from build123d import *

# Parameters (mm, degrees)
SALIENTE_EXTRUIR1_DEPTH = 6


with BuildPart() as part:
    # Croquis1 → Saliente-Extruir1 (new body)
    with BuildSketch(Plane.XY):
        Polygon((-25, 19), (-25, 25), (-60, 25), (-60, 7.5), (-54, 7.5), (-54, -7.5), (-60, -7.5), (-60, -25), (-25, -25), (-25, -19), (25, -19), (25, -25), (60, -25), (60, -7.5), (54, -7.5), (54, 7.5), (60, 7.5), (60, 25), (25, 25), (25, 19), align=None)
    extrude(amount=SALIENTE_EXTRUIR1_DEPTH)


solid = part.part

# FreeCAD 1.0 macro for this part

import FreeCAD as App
import Part
import Sketcher
from FreeCAD import Vector

doc = App.newDocument("Part")
body = doc.addObject("PartDesign::Body", "Body")

# Sketch on XY plane
sketch1 = doc.addObject("Sketcher::SketchObject", "Sketch")
body.addObject(sketch1)
sketch1.AttachmentSupport = (doc.XY_Plane, [""])
sketch1.MapMode = "FlatFace"
sketch1.addGeometry(Part.LineSegment(Vector(-25, 19, 0), Vector(-25, 25, 0)), False)
sketch1.addGeometry(Part.LineSegment(Vector(-25, 25, 0), Vector(-60, 25, 0)), False)
sketch1.addGeometry(Part.LineSegment(Vector(-60, 25, 0), Vector(-60, 8, 0)), False)
sketch1.addGeometry(Part.LineSegment(Vector(-60, 8, 0), Vector(-54, 8, 0)), False)
sketch1.addGeometry(Part.LineSegment(Vector(-54, 8, 0), Vector(-54, -8, 0)), False)
sketch1.addGeometry(Part.LineSegment(Vector(-54, -8, 0), Vector(-60, -8, 0)), False)
sketch1.addGeometry(Part.LineSegment(Vector(-60, -8, 0), Vector(-60, -25, 0)), False)
sketch1.addGeometry(Part.LineSegment(Vector(-60, -25, 0), Vector(-25, -25, 0)), False)
sketch1.addGeometry(Part.LineSegment(Vector(-25, -25, 0), Vector(-25, -19, 0)), False)
sketch1.addGeometry(Part.LineSegment(Vector(-25, -19, 0), Vector(25, -19, 0)), False)
sketch1.addGeometry(Part.LineSegment(Vector(25, -19, 0), Vector(25, -25, 0)), False)
sketch1.addGeometry(Part.LineSegment(Vector(25, -25, 0), Vector(60, -25, 0)), False)
sketch1.addGeometry(Part.LineSegment(Vector(60, -25, 0), Vector(60, -8, 0)), False)
sketch1.addGeometry(Part.LineSegment(Vector(60, -8, 0), Vector(54, -8, 0)), False)
sketch1.addGeometry(Part.LineSegment(Vector(54, -8, 0), Vector(54, 8, 0)), False)
sketch1.addGeometry(Part.LineSegment(Vector(54, 8, 0), Vector(60, 8, 0)), False)
sketch1.addGeometry(Part.LineSegment(Vector(60, 8, 0), Vector(60, 25, 0)), False)
sketch1.addGeometry(Part.LineSegment(Vector(60, 25, 0), Vector(25, 25, 0)), False)
sketch1.addGeometry(Part.LineSegment(Vector(25, 25, 0), Vector(25, 19, 0)), False)
sketch1.addGeometry(Part.LineSegment(Vector(25, 19, 0), Vector(-25, 19, 0)), False)
sketch1.addConstraint(Sketcher.Constraint("Coincident", 0, 2, 1, 1))
sketch1.addConstraint(Sketcher.Constraint("Coincident", 1, 2, 2, 1))
sketch1.addConstraint(Sketcher.Constraint("Coincident", 2, 2, 3, 1))
sketch1.addConstraint(Sketcher.Constraint("Coincident", 3, 2, 4, 1))
sketch1.addConstraint(Sketcher.Constraint("Coincident", 4, 2, 5, 1))
sketch1.addConstraint(Sketcher.Constraint("Coincident", 5, 2, 6, 1))
sketch1.addConstraint(Sketcher.Constraint("Coincident", 6, 2, 7, 1))
sketch1.addConstraint(Sketcher.Constraint("Coincident", 7, 2, 8, 1))
sketch1.addConstraint(Sketcher.Constraint("Coincident", 8, 2, 9, 1))
sketch1.addConstraint(Sketcher.Constraint("Coincident", 9, 2, 10, 1))
sketch1.addConstraint(Sketcher.Constraint("Coincident", 10, 2, 11, 1))
sketch1.addConstraint(Sketcher.Constraint("Coincident", 11, 2, 12, 1))
sketch1.addConstraint(Sketcher.Constraint("Coincident", 12, 2, 13, 1))
sketch1.addConstraint(Sketcher.Constraint("Coincident", 13, 2, 14, 1))
sketch1.addConstraint(Sketcher.Constraint("Coincident", 14, 2, 15, 1))
sketch1.addConstraint(Sketcher.Constraint("Coincident", 15, 2, 16, 1))
sketch1.addConstraint(Sketcher.Constraint("Coincident", 16, 2, 17, 1))
sketch1.addConstraint(Sketcher.Constraint("Coincident", 17, 2, 18, 1))
sketch1.addConstraint(Sketcher.Constraint("Coincident", 18, 2, 19, 1))
sketch1.addConstraint(Sketcher.Constraint("Coincident", 19, 2, 0, 1))
sketch1.addConstraint(Sketcher.Constraint("Vertical", 0))
sketch1.addConstraint(Sketcher.Constraint("Horizontal", 1))
sketch1.addConstraint(Sketcher.Constraint("Vertical", 2))
sketch1.addConstraint(Sketcher.Constraint("Horizontal", 3))
sketch1.addConstraint(Sketcher.Constraint("Vertical", 4))
sketch1.addConstraint(Sketcher.Constraint("Horizontal", 5))
sketch1.addConstraint(Sketcher.Constraint("Vertical", 6))
sketch1.addConstraint(Sketcher.Constraint("Horizontal", 7))
sketch1.addConstraint(Sketcher.Constraint("Vertical", 8))
sketch1.addConstraint(Sketcher.Constraint("Horizontal", 9))
sketch1.addConstraint(Sketcher.Constraint("Vertical", 10))
sketch1.addConstraint(Sketcher.Constraint("Horizontal", 11))
sketch1.addConstraint(Sketcher.Constraint("Vertical", 12))
sketch1.addConstraint(Sketcher.Constraint("Horizontal", 13))
sketch1.addConstraint(Sketcher.Constraint("Vertical", 14))
sketch1.addConstraint(Sketcher.Constraint("Horizontal", 15))
sketch1.addConstraint(Sketcher.Constraint("Vertical", 16))
sketch1.addConstraint(Sketcher.Constraint("Horizontal", 17))
sketch1.addConstraint(Sketcher.Constraint("Vertical", 18))
sketch1.addConstraint(Sketcher.Constraint("Horizontal", 19))
sketch1.addConstraint(Sketcher.Constraint("Symmetric", 0, 2, 10, 2, -1, 1))
sketch1.addConstraint(Sketcher.Constraint("Symmetric", 2, 2, 12, 2, -1, 1))
sketch1.addConstraint(Sketcher.Constraint("Symmetric", 4, 2, 14, 2, -1, 1))
sketch1.addConstraint(Sketcher.Constraint("Symmetric", 6, 2, 16, 2, -1, 1))
sketch1.addConstraint(Sketcher.Constraint("Symmetric", 8, 2, 18, 2, -1, 1))
sketch1.addConstraint(Sketcher.Constraint("Symmetric", 7, 2, 10, 2, -2))
sketch1.addConstraint(Sketcher.Constraint("Symmetric", 5, 2, 12, 2, -2))
sketch1.addConstraint(Sketcher.Constraint("Equal", 15, 0))
sketch1.addConstraint(Sketcher.Constraint("DistanceX", 1, 2, 1, 1, 35.0))
sketch1.addConstraint(Sketcher.Constraint("DistanceX", 3, 1, 3, 2, 6.0))
sketch1.addConstraint(Sketcher.Constraint("DistanceX", 9, 1, 9, 2, 50.0))
sketch1.addConstraint(Sketcher.Constraint("DistanceY", 4, 2, 4, 1, 15.0))
sketch1.addConstraint(Sketcher.Constraint("DistanceY", 2, 2, 2, 1, 17.5))
pad1 = doc.addObject("PartDesign::Pad", "Pad")
body.addObject(pad1)
pad1.Profile = sketch1
pad1.Length = 6

doc.recompute()
